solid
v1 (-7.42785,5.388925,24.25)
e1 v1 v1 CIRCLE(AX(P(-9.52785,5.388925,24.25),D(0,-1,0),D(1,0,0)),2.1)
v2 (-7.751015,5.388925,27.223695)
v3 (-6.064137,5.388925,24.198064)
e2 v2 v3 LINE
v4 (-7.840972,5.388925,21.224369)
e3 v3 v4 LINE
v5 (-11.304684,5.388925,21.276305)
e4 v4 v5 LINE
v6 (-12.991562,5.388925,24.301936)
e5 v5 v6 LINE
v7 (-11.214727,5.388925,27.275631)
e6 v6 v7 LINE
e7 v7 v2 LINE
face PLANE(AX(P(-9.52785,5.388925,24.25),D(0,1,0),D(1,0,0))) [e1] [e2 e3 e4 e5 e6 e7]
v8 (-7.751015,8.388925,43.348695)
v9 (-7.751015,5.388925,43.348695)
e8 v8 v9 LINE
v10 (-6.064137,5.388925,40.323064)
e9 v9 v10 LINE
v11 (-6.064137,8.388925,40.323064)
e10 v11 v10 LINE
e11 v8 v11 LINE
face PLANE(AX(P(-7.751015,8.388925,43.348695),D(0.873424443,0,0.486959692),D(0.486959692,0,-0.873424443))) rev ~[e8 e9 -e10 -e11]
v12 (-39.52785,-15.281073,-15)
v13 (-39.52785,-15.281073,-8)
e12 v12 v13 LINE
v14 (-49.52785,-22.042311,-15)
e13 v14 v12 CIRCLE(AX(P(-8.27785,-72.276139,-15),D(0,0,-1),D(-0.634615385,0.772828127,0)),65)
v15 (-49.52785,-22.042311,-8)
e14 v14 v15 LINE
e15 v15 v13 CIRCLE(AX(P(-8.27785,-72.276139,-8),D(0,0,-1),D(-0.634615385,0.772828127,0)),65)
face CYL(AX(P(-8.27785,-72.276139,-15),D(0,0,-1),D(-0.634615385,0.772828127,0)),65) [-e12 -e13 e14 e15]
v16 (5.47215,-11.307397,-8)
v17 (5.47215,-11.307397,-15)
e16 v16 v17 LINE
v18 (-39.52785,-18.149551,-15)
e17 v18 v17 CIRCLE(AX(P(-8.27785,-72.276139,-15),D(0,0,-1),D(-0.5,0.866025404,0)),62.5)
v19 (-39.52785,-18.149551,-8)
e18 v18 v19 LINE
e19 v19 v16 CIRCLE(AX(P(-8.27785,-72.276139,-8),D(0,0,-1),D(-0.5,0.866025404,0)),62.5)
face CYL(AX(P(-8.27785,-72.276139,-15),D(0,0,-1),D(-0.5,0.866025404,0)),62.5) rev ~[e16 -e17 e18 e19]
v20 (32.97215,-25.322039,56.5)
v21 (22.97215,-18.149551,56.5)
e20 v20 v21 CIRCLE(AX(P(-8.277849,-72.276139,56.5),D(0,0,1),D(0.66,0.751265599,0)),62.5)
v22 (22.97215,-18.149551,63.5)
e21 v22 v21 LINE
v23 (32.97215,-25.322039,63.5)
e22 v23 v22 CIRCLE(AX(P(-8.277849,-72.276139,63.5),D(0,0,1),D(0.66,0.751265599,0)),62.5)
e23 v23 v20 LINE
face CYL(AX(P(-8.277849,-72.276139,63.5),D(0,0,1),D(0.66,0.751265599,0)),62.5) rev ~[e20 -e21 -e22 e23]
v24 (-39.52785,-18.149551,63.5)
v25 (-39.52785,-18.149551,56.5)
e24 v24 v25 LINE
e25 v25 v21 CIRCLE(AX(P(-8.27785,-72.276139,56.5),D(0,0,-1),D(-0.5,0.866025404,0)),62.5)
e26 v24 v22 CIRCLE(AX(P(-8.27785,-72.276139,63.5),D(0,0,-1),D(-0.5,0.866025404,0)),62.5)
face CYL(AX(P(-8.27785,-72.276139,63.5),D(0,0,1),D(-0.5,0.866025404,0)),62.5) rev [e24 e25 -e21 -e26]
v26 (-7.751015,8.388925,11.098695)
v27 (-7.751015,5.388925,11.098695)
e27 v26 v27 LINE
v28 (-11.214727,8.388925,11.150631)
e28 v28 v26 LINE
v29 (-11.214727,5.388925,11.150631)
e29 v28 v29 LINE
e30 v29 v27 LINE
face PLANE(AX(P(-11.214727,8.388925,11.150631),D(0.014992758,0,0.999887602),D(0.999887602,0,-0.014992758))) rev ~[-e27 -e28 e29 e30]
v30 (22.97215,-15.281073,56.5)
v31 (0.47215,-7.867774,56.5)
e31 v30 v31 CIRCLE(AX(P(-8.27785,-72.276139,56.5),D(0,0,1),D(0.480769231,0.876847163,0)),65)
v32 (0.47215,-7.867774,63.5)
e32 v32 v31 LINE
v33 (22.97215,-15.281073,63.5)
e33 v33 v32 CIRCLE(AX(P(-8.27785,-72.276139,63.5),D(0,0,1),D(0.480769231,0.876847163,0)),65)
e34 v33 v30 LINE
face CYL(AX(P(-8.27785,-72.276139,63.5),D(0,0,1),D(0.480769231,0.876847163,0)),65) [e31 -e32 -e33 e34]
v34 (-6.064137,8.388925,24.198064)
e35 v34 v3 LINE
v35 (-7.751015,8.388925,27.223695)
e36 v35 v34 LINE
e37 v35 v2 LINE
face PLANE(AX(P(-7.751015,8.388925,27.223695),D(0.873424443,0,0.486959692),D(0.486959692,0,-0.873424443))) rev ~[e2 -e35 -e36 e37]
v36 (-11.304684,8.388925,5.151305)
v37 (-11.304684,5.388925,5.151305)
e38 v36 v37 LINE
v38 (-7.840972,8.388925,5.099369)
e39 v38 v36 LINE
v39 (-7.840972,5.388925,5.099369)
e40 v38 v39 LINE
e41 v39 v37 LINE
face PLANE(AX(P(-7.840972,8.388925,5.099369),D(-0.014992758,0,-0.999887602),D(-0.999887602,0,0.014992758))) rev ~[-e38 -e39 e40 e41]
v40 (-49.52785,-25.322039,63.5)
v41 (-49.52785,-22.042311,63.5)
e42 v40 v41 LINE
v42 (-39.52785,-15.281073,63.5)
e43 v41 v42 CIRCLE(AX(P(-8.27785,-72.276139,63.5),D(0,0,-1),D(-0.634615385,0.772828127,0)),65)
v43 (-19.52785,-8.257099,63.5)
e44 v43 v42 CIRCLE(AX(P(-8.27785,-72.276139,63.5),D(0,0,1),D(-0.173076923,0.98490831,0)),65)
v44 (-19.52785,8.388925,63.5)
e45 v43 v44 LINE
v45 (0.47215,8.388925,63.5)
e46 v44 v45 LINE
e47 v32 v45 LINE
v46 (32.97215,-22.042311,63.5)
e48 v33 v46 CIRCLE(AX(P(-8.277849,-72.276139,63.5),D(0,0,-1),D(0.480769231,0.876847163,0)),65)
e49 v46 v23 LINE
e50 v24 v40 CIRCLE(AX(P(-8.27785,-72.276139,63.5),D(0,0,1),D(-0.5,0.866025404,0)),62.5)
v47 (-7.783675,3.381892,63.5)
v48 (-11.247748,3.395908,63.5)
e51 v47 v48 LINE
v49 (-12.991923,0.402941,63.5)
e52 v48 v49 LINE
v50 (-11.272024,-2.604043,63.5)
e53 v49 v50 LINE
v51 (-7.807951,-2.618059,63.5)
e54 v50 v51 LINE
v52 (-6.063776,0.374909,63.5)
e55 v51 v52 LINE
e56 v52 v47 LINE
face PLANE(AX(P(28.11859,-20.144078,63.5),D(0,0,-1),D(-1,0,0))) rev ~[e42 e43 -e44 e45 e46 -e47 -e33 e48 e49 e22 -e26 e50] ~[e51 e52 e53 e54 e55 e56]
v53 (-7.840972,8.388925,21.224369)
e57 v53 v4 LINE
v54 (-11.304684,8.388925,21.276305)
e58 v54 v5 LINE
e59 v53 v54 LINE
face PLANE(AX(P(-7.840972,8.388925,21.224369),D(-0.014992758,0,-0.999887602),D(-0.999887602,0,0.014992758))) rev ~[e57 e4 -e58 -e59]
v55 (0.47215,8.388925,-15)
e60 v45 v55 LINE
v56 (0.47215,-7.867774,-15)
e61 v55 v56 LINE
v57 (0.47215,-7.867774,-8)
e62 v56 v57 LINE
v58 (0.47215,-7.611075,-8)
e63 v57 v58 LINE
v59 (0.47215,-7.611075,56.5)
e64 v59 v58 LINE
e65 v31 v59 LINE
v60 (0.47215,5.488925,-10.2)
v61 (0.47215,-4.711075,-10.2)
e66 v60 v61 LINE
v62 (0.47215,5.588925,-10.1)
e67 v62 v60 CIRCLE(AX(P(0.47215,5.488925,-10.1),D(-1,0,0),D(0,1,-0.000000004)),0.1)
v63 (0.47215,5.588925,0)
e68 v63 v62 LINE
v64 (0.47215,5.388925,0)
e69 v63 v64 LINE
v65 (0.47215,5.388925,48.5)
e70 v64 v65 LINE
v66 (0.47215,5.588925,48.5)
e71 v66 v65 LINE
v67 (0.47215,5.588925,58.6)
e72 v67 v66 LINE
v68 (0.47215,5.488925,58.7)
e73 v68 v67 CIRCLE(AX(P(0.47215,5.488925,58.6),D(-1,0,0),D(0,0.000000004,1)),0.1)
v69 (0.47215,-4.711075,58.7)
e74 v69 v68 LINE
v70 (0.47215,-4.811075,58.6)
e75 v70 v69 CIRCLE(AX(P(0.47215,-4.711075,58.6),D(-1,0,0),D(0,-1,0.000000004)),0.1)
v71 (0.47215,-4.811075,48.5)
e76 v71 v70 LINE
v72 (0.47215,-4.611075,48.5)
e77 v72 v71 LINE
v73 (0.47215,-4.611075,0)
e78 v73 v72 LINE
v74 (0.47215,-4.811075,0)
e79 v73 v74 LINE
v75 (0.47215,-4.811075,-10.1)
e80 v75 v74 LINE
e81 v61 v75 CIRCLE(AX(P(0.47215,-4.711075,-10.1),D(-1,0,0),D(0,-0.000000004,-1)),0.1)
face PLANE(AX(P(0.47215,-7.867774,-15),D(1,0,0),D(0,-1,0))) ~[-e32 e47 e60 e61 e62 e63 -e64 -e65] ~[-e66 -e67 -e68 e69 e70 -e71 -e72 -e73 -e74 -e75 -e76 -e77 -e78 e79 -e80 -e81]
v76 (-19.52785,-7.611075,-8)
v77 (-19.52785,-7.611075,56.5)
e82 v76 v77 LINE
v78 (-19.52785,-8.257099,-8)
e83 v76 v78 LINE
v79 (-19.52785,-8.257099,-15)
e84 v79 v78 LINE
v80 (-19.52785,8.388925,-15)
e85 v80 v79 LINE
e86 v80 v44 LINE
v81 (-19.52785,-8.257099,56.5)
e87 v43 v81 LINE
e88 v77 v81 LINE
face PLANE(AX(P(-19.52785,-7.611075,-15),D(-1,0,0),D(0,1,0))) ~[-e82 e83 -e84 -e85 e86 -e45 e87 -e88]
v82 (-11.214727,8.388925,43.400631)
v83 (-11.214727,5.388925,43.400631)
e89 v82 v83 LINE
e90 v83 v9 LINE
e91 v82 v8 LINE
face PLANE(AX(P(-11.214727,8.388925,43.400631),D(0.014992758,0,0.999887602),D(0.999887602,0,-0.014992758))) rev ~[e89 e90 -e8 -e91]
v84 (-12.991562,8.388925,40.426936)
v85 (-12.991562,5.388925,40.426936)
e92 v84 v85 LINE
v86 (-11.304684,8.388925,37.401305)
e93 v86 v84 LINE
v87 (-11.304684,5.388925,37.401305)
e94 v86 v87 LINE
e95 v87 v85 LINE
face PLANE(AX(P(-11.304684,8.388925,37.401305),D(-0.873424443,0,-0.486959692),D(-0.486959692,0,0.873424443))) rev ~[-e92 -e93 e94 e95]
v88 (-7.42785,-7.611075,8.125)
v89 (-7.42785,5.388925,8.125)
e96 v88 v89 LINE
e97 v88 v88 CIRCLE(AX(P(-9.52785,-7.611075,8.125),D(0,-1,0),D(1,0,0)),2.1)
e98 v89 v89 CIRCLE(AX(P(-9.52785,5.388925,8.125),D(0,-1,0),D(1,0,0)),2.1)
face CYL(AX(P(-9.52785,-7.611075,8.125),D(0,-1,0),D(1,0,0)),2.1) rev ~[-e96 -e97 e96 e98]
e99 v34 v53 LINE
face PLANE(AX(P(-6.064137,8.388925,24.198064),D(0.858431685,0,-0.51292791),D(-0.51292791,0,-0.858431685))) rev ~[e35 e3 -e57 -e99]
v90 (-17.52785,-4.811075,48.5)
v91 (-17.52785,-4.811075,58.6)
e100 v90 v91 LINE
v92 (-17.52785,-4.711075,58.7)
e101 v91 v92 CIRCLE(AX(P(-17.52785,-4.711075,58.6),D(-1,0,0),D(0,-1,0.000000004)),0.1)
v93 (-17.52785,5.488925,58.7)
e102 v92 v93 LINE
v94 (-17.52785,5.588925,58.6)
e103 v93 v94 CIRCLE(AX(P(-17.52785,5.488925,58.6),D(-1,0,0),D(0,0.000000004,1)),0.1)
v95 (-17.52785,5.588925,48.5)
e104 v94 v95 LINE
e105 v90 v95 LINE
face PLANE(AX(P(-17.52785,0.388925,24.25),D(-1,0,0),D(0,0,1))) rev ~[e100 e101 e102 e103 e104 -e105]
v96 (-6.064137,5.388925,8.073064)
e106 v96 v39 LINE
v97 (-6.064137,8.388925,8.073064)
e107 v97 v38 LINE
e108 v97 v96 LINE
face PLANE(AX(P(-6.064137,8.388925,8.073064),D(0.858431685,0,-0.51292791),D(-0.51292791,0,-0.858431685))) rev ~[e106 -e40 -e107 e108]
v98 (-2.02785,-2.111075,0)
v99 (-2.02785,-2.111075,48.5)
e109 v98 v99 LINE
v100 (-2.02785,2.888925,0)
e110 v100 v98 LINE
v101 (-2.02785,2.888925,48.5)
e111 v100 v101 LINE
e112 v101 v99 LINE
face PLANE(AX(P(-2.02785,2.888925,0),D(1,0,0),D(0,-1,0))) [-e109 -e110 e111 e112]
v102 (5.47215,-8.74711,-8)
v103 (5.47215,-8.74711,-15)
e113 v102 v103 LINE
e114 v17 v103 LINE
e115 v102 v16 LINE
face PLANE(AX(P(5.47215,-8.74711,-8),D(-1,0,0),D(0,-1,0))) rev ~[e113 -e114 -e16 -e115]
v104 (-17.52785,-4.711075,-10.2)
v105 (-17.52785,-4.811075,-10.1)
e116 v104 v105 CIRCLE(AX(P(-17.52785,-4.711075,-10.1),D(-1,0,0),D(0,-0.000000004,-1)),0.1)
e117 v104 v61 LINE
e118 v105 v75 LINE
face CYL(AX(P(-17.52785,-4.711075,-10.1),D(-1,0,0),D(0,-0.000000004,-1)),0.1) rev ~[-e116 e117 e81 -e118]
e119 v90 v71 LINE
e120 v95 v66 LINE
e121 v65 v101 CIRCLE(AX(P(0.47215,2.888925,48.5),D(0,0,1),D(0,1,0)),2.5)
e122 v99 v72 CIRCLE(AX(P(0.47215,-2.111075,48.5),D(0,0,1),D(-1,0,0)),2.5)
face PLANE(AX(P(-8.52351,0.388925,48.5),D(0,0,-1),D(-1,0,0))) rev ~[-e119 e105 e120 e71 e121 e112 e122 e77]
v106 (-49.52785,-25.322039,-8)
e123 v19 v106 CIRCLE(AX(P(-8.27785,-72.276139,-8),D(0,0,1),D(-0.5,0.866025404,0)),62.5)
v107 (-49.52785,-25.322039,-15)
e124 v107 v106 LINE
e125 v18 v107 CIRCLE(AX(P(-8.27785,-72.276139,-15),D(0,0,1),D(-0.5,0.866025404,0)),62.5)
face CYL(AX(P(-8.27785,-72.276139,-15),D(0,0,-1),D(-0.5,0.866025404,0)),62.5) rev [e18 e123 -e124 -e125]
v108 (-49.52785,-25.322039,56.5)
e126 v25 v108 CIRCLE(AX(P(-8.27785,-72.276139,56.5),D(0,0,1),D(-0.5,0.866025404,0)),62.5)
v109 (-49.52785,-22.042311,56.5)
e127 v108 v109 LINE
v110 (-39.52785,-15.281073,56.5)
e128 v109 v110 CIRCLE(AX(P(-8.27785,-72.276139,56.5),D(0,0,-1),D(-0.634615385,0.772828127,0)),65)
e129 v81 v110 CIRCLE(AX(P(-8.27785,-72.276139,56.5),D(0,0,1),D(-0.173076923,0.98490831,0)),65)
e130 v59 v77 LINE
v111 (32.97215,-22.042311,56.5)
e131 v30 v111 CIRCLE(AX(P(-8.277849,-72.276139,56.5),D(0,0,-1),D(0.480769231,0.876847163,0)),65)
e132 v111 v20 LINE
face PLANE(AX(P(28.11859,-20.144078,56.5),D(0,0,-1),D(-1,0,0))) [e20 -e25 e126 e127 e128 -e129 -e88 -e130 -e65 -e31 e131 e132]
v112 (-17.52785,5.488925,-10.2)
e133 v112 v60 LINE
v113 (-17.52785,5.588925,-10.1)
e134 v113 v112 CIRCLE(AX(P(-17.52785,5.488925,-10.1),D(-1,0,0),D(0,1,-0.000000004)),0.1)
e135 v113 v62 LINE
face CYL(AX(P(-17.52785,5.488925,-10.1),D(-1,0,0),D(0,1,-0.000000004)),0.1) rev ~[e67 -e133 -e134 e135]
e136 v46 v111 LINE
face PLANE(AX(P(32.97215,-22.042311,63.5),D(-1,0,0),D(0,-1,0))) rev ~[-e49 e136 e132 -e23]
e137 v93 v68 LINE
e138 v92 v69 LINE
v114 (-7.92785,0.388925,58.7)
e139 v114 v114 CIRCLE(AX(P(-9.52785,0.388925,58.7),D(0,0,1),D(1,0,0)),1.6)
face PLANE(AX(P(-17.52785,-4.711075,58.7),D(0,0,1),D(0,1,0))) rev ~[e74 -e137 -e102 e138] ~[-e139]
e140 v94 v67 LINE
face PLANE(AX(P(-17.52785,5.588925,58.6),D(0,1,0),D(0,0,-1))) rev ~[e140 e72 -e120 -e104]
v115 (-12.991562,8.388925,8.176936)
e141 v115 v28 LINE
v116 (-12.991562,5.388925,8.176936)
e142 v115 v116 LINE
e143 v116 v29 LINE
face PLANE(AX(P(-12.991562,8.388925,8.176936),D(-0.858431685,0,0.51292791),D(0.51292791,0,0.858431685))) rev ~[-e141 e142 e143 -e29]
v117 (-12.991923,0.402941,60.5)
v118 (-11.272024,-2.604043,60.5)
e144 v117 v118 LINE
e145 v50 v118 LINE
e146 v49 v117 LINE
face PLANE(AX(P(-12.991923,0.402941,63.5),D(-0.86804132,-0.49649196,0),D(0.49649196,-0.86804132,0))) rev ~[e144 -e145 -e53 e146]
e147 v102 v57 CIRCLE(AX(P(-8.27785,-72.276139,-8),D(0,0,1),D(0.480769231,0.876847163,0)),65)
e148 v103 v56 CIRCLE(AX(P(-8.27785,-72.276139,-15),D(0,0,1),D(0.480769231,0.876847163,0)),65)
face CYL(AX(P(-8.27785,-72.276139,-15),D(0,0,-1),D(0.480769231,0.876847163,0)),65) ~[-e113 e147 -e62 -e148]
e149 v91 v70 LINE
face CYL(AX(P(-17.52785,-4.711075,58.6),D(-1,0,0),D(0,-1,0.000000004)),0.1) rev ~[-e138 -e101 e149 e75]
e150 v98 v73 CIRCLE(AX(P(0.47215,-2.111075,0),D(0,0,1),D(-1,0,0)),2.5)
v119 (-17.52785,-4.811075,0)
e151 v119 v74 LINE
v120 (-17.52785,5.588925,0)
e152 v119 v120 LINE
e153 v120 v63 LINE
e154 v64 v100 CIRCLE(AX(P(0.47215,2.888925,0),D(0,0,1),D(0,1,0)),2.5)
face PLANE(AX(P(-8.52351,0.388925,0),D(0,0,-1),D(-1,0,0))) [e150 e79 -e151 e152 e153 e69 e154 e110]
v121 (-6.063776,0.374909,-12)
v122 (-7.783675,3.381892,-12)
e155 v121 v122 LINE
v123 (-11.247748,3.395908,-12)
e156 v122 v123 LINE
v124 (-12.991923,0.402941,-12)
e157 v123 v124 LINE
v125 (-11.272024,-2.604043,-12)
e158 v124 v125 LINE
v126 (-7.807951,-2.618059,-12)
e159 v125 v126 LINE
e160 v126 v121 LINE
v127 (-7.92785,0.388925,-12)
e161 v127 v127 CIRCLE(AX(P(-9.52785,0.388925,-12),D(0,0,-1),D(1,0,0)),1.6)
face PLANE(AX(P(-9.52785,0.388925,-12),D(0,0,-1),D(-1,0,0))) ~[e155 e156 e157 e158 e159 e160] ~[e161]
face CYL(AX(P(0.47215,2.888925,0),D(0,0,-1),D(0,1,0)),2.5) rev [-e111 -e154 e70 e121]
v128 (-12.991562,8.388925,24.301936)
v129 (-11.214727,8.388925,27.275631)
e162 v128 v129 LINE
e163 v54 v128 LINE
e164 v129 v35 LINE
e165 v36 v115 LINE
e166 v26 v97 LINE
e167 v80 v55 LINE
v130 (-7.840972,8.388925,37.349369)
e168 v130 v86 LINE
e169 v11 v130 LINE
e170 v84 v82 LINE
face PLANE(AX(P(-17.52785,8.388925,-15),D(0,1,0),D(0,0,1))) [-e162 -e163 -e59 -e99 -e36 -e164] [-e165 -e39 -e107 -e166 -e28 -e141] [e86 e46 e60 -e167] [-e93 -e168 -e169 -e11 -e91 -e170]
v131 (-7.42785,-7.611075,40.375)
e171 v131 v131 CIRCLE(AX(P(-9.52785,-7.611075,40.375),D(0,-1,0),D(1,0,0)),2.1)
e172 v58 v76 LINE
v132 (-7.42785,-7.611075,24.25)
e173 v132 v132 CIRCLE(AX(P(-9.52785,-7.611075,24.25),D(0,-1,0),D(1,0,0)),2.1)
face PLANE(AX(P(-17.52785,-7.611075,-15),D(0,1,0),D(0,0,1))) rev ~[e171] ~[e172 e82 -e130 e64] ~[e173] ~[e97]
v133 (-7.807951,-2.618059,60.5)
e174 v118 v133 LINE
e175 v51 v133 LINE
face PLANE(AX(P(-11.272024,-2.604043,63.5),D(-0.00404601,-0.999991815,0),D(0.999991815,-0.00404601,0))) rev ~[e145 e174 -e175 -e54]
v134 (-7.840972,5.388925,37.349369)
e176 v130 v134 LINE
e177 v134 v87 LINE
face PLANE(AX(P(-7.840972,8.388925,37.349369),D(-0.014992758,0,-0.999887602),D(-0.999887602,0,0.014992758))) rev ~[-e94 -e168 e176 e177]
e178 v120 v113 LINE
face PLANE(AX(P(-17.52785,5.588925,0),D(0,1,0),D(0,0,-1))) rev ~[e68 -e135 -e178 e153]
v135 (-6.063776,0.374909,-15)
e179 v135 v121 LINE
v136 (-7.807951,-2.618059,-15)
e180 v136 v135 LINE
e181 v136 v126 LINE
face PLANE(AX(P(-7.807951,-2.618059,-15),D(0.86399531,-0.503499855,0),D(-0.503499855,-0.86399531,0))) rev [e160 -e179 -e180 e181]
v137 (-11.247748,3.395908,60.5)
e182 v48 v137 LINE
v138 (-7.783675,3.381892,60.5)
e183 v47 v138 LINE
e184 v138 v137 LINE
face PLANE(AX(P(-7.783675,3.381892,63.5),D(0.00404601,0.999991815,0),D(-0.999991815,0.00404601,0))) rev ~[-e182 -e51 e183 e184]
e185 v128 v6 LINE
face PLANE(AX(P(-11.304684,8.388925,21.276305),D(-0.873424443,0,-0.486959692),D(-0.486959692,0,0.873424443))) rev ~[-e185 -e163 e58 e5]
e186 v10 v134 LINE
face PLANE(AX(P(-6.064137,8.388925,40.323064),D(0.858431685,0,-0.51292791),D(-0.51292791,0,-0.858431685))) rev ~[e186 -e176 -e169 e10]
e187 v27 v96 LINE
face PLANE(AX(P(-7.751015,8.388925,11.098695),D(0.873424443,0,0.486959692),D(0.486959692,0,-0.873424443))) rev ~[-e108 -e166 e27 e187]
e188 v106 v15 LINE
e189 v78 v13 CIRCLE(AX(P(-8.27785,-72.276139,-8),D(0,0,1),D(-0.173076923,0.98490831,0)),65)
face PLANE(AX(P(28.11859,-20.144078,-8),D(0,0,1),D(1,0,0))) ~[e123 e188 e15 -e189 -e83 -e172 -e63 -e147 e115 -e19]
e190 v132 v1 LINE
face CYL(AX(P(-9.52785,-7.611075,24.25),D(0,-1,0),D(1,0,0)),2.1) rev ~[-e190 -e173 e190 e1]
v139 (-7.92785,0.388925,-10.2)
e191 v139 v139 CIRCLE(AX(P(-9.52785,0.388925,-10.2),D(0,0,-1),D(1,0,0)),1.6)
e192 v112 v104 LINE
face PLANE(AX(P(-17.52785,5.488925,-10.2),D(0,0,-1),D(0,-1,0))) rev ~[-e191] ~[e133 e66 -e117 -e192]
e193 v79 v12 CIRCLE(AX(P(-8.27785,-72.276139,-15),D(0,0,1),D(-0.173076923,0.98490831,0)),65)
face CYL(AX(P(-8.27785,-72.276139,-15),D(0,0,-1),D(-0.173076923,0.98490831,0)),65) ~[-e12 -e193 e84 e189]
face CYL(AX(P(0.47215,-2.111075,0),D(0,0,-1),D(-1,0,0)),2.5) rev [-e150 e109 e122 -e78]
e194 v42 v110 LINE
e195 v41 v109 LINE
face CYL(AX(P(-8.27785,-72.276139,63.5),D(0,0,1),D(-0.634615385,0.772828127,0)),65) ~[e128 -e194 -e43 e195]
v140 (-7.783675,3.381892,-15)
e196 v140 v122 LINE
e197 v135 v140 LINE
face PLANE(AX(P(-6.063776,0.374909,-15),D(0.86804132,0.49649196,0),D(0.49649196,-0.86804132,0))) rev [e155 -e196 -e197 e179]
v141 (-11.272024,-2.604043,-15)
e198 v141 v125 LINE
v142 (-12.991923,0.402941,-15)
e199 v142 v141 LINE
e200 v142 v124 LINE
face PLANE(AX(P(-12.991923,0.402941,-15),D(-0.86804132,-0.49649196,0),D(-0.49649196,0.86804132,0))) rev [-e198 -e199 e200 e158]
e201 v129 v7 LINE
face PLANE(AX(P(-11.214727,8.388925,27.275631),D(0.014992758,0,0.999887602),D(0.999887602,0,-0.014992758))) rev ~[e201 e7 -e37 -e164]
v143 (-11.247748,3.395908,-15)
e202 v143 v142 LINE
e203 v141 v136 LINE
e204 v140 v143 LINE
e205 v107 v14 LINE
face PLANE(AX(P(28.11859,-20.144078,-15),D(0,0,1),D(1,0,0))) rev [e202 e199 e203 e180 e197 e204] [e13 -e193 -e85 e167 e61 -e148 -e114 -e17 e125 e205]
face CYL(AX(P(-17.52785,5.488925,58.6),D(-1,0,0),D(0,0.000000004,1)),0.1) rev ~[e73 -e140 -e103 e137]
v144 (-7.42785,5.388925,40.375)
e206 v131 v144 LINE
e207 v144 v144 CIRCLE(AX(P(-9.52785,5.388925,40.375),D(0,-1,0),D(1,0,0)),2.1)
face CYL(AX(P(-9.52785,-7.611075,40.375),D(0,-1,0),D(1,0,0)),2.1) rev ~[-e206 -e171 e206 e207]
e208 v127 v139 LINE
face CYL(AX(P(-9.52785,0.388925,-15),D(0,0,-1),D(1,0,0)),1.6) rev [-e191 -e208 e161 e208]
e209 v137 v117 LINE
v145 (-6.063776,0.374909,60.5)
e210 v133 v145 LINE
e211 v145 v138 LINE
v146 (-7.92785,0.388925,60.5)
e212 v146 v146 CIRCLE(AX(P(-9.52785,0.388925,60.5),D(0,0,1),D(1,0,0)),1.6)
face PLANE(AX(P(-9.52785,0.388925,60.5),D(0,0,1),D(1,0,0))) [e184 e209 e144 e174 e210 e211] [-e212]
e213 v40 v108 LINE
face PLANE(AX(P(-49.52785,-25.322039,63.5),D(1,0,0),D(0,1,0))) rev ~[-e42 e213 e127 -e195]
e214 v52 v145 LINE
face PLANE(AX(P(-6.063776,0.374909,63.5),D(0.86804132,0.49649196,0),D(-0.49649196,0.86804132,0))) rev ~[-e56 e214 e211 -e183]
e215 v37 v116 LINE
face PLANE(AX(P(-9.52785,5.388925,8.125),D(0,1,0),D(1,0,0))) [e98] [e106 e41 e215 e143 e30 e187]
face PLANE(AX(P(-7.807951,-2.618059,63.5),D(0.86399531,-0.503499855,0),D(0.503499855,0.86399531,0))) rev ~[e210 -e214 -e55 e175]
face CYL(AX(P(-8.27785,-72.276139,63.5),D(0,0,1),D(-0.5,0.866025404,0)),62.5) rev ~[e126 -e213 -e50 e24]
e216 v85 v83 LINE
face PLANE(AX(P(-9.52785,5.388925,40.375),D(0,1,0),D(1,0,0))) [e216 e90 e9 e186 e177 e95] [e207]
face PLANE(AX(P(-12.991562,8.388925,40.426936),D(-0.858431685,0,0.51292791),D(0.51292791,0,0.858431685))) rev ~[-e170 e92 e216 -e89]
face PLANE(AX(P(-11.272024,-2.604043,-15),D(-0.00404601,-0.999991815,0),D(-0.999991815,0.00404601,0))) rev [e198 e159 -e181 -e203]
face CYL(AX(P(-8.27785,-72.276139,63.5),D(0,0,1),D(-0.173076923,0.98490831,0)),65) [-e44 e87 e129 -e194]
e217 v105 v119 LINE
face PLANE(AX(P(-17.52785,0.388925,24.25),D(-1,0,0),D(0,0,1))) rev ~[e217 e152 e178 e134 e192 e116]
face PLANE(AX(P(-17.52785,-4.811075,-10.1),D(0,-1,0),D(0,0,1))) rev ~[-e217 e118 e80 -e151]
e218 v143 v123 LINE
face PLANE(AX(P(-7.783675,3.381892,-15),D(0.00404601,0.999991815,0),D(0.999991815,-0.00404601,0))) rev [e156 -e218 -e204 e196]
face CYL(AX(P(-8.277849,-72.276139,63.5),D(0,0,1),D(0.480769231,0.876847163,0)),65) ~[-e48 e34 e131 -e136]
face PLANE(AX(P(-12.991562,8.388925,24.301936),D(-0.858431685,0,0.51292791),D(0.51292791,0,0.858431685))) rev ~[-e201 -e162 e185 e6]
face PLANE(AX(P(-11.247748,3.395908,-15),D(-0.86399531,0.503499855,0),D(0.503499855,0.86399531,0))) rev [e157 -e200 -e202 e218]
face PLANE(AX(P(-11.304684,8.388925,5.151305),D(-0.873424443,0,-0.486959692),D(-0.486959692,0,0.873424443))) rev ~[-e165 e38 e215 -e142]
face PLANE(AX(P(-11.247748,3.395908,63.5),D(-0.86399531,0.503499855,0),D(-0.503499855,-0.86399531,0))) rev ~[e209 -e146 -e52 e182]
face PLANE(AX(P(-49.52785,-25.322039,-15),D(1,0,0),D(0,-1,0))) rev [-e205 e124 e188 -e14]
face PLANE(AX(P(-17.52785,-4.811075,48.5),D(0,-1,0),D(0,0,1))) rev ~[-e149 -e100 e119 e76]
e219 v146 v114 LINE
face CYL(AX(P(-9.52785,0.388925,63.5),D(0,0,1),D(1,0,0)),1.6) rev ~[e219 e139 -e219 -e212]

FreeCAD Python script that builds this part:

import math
import FreeCAD as App
import Part
import Sketcher

V = App.Vector
Q = App.Units.Quantity


def add_polygon(sketch, points):
    """Adds a closed chain of lines whose ends are joined by coincident constraints."""
    first, n = sketch.GeometryCount, len(points)
    for a, b in zip(points, points[1:] + points[:1]):
        sketch.addGeometry(Part.LineSegment(App.Vector(*a, 0), App.Vector(*b, 0)), False)
    for i in range(n):
        sketch.addConstraint(Sketcher.Constraint("Coincident", first + i, 2, first + (i + 1) % n, 1))

doc = App.newDocument("Part")
body = doc.addObject("PartDesign::Body", "Body")

# Sketch on XY plane
sketch1 = body.newObject("Sketcher::SketchObject", "Sketch")
sketch1.AttachmentSupport = (doc.getObject("XY_Plane"), [""])
sketch1.MapMode = "FlatFace"
sketch1.addGeometry([
    Part.ArcOfCircle(Part.Circle(V(0.5, -2.1, 0), V(0, 0, 1), 2.5), math.radians(180), math.radians(270)),  # 0
    Part.LineSegment(V(-2, -2.1, 0), V(-2, 2.9, 0)),  # 1
    Part.ArcOfCircle(Part.Circle(V(0.5, 2.9, 0), V(0, 0, 1), 2.5), math.radians(90), math.radians(180)),  # 2
    Part.LineSegment(V(0.5, 5.4, 0), V(0.5, 8.4, 0)),  # 3
    Part.LineSegment(V(0.5, 8.4, 0), V(-17.5, 8.4, 0)),  # 4
    Part.LineSegment(V(-17.5, 8.4, 0), V(-17.5, -7.6, 0)),  # 5
    Part.LineSegment(V(-17.5, -7.6, 0), V(0.5, -7.6, 0)),  # 6
    Part.LineSegment(V(0.5, -7.6, 0), V(0.5, -4.6, 0)),  # 7
], False)
sketch1.addConstraint([
    Sketcher.Constraint("Tangent", 0, 1, 1, 1),
    Sketcher.Constraint("Tangent", 1, 2, 2, 2),
    Sketcher.Constraint("Coincident", 2, 1, 3, 1),
    Sketcher.Constraint("Coincident", 3, 2, 4, 1),
    Sketcher.Constraint("Coincident", 4, 2, 5, 1),
    Sketcher.Constraint("Coincident", 5, 2, 6, 1),
    Sketcher.Constraint("Coincident", 6, 2, 7, 1),
    Sketcher.Constraint("Coincident", 7, 2, 0, 2),
    Sketcher.Constraint("Vertical", 1),
    Sketcher.Constraint("Vertical", 3),
    Sketcher.Constraint("Horizontal", 4),
    Sketcher.Constraint("Vertical", 5),
    Sketcher.Constraint("Horizontal", 6),
    Sketcher.Constraint("Vertical", 7),
    Sketcher.Constraint("Equal", 0, 2),
    Sketcher.Constraint("Vertical", 0, 3, 2, 1),
    Sketcher.Constraint("Vertical", 3, 2, 6, 2),
    Sketcher.Constraint("Equal", 3, 7),
    Sketcher.Constraint("Radius", 0, Q("2.5 mm")),
    Sketcher.Constraint("DistanceX", 4, 2, 4, 1, Q("18 mm")),
    Sketcher.Constraint("DistanceY", 1, 1, 1, 2, Q("5 mm")),
    Sketcher.Constraint("DistanceY", 3, 1, 3, 2, Q("3 mm")),
    Sketcher.Constraint("DistanceX", -1, 1, 0, 3, Q("0.47215 mm")),
    Sketcher.Constraint("DistanceY", 0, 3, -1, 1, Q("2.111075 mm")),
])
pad1 = body.newObject("PartDesign::Pad", "Pad")
pad1.Profile = sketch1
pad1.Length = 48.5

# Sketch on YZ plane
sketch2 = body.newObject("Sketcher::SketchObject", "Sketch001")
sketch2.AttachmentSupport = (doc.getObject("YZ_Plane"), [""])
sketch2.MapMode = "FlatFace"
sketch2.AttachmentOffset = App.Placement(V(0, 0, -17.52785), App.Rotation())
sketch2.addGeometry([
    Part.LineSegment(V(8.39, 63.5, 0), V(8.39, 48.5, 0)),  # 0
    Part.LineSegment(V(8.39, 48.5, 0), V(5.59, 48.5, 0)),  # 1
    Part.LineSegment(V(5.59, 48.5, 0), V(5.59, 58.6, 0)),  # 2
    Part.ArcOfCircle(Part.Circle(V(5.49, 58.6, 0), V(0, 0, 1), 0.1), math.radians(0), math.radians(90)),  # 3
    Part.LineSegment(V(5.49, 58.7, 0), V(-4.71, 58.7, 0)),  # 4
    Part.ArcOfCircle(Part.Circle(V(-4.71, 58.6, 0), V(0, 0, 1), 0.1), math.radians(90), math.radians(180)),  # 5
    Part.LineSegment(V(-4.81, 58.6, 0), V(-4.81, 48.5, 0)),  # 6
    Part.LineSegment(V(-4.81, 48.5, 0), V(-7.61, 48.5, 0)),  # 7
    Part.LineSegment(V(-7.61, 48.5, 0), V(-7.61, 63.5, 0)),  # 8
    Part.LineSegment(V(-7.61, 63.5, 0), V(8.39, 63.5, 0)),  # 9
    Part.LineSegment(V(-7.61, 0, 0), V(-4.81, 0, 0)),  # 10
    Part.LineSegment(V(-4.81, 0, 0), V(-4.81, -10.1, 0)),  # 11
    Part.ArcOfCircle(Part.Circle(V(-4.71, -10.1, 0), V(0, 0, 1), 0.1), math.radians(180), math.radians(270)),  # 12
    Part.LineSegment(V(-4.71, -10.2, 0), V(5.49, -10.2, 0)),  # 13
    Part.ArcOfCircle(Part.Circle(V(5.49, -10.1, 0), V(0, 0, 1), 0.1), math.radians(-90), math.radians(0)),  # 14
    Part.LineSegment(V(5.59, -10.1, 0), V(5.59, 0, 0)),  # 15
    Part.LineSegment(V(5.59, 0, 0), V(8.39, 0, 0)),  # 16
    Part.LineSegment(V(8.39, 0, 0), V(8.39, -15, 0)),  # 17
    Part.LineSegment(V(8.39, -15, 0), V(-7.61, -15, 0)),  # 18
    Part.LineSegment(V(-7.61, -15, 0), V(-7.61, 0, 0)),  # 19
], False)
sketch2.addConstraint([
    Sketcher.Constraint("Coincident", 0, 2, 1, 1),
    Sketcher.Constraint("Coincident", 1, 2, 2, 1),
    Sketcher.Constraint("Tangent", 2, 2, 3, 1),
    Sketcher.Constraint("Tangent", 3, 2, 4, 1),
    Sketcher.Constraint("Tangent", 4, 2, 5, 1),
    Sketcher.Constraint("Tangent", 5, 2, 6, 1),
    Sketcher.Constraint("Coincident", 6, 2, 7, 1),
    Sketcher.Constraint("Coincident", 7, 2, 8, 1),
    Sketcher.Constraint("Coincident", 8, 2, 9, 1),
    Sketcher.Constraint("Coincident", 9, 2, 0, 1),
    Sketcher.Constraint("Coincident", 10, 2, 11, 1),
    Sketcher.Constraint("Tangent", 11, 2, 12, 1),
    Sketcher.Constraint("Tangent", 12, 2, 13, 1),
    Sketcher.Constraint("Tangent", 13, 2, 14, 1),
    Sketcher.Constraint("Tangent", 14, 2, 15, 1),
    Sketcher.Constraint("Coincident", 15, 2, 16, 1),
    Sketcher.Constraint("Coincident", 16, 2, 17, 1),
    Sketcher.Constraint("Coincident", 17, 2, 18, 1),
    Sketcher.Constraint("Coincident", 18, 2, 19, 1),
    Sketcher.Constraint("Coincident", 19, 2, 10, 1),
    Sketcher.Constraint("Vertical", 0),
    Sketcher.Constraint("Horizontal", 1),
    Sketcher.Constraint("Vertical", 2),
    Sketcher.Constraint("Horizontal", 4),
    Sketcher.Constraint("Vertical", 6),
    Sketcher.Constraint("Horizontal", 7),
    Sketcher.Constraint("Vertical", 8),
    Sketcher.Constraint("Horizontal", 9),
    Sketcher.Constraint("Horizontal", 10),
    Sketcher.Constraint("Vertical", 11),
    Sketcher.Constraint("Horizontal", 13),
    Sketcher.Constraint("Vertical", 15),
    Sketcher.Constraint("Horizontal", 16),
    Sketcher.Constraint("Vertical", 17),
    Sketcher.Constraint("Horizontal", 18),
    Sketcher.Constraint("Vertical", 19),
    Sketcher.Constraint("Equal", 3, 5),
    Sketcher.Constraint("Equal", 5, 12),
    Sketcher.Constraint("Equal", 12, 14),
    Sketcher.Constraint("PointOnObject", 10, 2, -1),
    Sketcher.Constraint("PointOnObject", 15, 2, -1),
    Sketcher.Constraint("Horizontal", 1, 2, 6, 2),
    Sketcher.Constraint("Vertical", 5, 3, 12, 3),
    Sketcher.Constraint("Vertical", 3, 3, 14, 3),
    Sketcher.Constraint("Vertical", 9, 2, 16, 2),
    Sketcher.Constraint("Vertical", 8, 2, 18, 2),
    Sketcher.Constraint("Equal", 1, 7),
    Sketcher.Constraint("Equal", 6, 11),
    Sketcher.Constraint("Equal", 8, 17),
    Sketcher.Constraint("Radius", 3, Q("0.1 mm")),
    Sketcher.Constraint("DistanceX", 9, 1, 9, 2, Q("16 mm")),
    Sketcher.Constraint("DistanceY", 0, 2, 0, 1, Q("15 mm")),
    Sketcher.Constraint("DistanceX", 1, 2, 1, 1, Q("2.8 mm")),
    Sketcher.Constraint("DistanceY", 2, 1, 2, 2, Q("10.1 mm")),
    Sketcher.Constraint("DistanceY", -1, 1, 3, 3, Q("58.6 mm")),
    Sketcher.Constraint("DistanceX", -1, 1, 3, 3, Q("5.488925 mm")),
])
pad2 = body.newObject("PartDesign::Pad", "Pad001")
pad2.Profile = sketch2
pad2.Length = 18

# Sketch on XY plane
sketch3 = body.newObject("Sketcher::SketchObject", "Sketch002")
sketch3.AttachmentSupport = (doc.getObject("XY_Plane"), [""])
sketch3.MapMode = "FlatFace"
sketch3.AttachmentOffset = App.Placement(V(0, 0, 63.5), App.Rotation())
sketch3.addGeometry(Part.Circle(V(-9.5, 0.4, 0), V(0, 0, 1), 1.6), False)
sketch3.addConstraint([
    Sketcher.Constraint("Diameter", 0, Q("3.2 mm")),
    Sketcher.Constraint("DistanceX", 0, 3, -1, 1, Q("9.52785 mm")),
    Sketcher.Constraint("DistanceY", -1, 1, 0, 3, Q("0.388925 mm")),
])
pocket1 = body.newObject("PartDesign::Pocket", "Pocket")
pocket1.Profile = sketch3
pocket1.Length = 8
doc.recompute()

datumplane = body.newObject("PartDesign::Plane", "DatumPlane")
datumplane.AttachmentSupport = (doc.getObject("XY_Plane"), [""])
datumplane.MapMode = "FlatFace"
datumplane.AttachmentOffset = App.Placement(V(0, 0, 24.25), App.Rotation())
mirrored = body.newObject("PartDesign::Mirrored", "Mirrored")
mirrored.Originals = [pocket1]
mirrored.MirrorPlane = (datumplane, [""])
body.Tip = mirrored

# Sketch on XY plane
sketch4 = body.newObject("Sketcher::SketchObject", "Sketch003")
sketch4.AttachmentSupport = (doc.getObject("XY_Plane"), [""])
sketch4.MapMode = "FlatFace"
sketch4.AttachmentOffset = App.Placement(V(0, 0, 63.5), App.Rotation())
add_polygon(sketch4, [(-7.8, -2.6), (-6.1, 0.4), (-7.8, 3.4), (-11.2, 3.4), (-13, 0.4), (-11.3, -2.6)])  # lines 0-5
sketch4.addConstraint([
    Sketcher.Constraint("Parallel", 0, 3),
    Sketcher.Constraint("Parallel", 1, 4),
    Sketcher.Constraint("Parallel", 2, 5),
    Sketcher.Constraint("Equal", 0, 1),
    Sketcher.Constraint("Equal", 1, 2),
    Sketcher.Constraint("Equal", 2, 3),
    Sketcher.Constraint("DistanceY", 0, 2, 2, 2, Q("3.020999 mm")),
    Sketcher.Constraint("Distance", 0, Q("3.464102 mm")),
    Sketcher.Constraint("DistanceX", 1, 2, 0, 2, Q("1.719899 mm")),
    Sketcher.Constraint("DistanceY", -1, 1, 0, 2, Q("0.374909 mm")),
    Sketcher.Constraint("DistanceX", 2, 2, -1, 1, Q("11.247748 mm")),
    Sketcher.Constraint("DistanceY", -1, 1, 3, 2, Q("0.402941 mm")),
])
pocket2 = body.newObject("PartDesign::Pocket", "Pocket001")
pocket2.Profile = sketch4
pocket2.Length = 3
doc.recompute()

datumplane2 = body.newObject("PartDesign::Plane", "DatumPlane001")
datumplane2.AttachmentSupport = (doc.getObject("XY_Plane"), [""])
datumplane2.MapMode = "FlatFace"
datumplane2.AttachmentOffset = App.Placement(V(0, 0, 24.25), App.Rotation())
mirrored2 = body.newObject("PartDesign::Mirrored", "Mirrored001")
mirrored2.Originals = [pocket2]
mirrored2.MirrorPlane = (datumplane2, [""])
body.Tip = mirrored2

# Sketch on YZ plane
sketch5 = body.newObject("Sketcher::SketchObject", "Sketch004")
sketch5.AttachmentSupport = (doc.getObject("YZ_Plane"), [""])
sketch5.MapMode = "FlatFace"
sketch5.AttachmentOffset = App.Placement(V(0, 0, -17.52785), App.Rotation())
add_polygon(sketch5, [(8, -15), (-8, -15), (-8, 64), (8, 64)])  # lines 0-3
sketch5.addConstraint([
    Sketcher.Constraint("Horizontal", 0),
    Sketcher.Constraint("Vertical", 1),
    Sketcher.Constraint("Horizontal", 2),
    Sketcher.Constraint("Vertical", 3),
    Sketcher.Constraint("DistanceX", 0, 2, 0, 1, Q("16 mm")),
    Sketcher.Constraint("DistanceY", 1, 1, 1, 2, Q("78.5 mm")),
    Sketcher.Constraint("DistanceY", 0, 2, -1, 1, Q("15 mm")),
    Sketcher.Constraint("DistanceX", 0, 2, -1, 1, Q("7.611075 mm")),
])
pad3 = body.newObject("PartDesign::Pad", "Pad002")
pad3.Profile = sketch5
pad3.Length = 2
pad3.Reversed = True

# Sketch on XY plane
sketch6 = body.newObject("Sketcher::SketchObject", "Sketch005")
sketch6.AttachmentSupport = (doc.getObject("XY_Plane"), [""])
sketch6.MapMode = "FlatFace"
sketch6.AttachmentOffset = App.Placement(V(0, 0, 63.5), App.Rotation())
sketch6.addGeometry([
    Part.LineSegment(V(-19.53, -7.61, 0), V(-19.53, -8.26, 0)),  # 0
    Part.ArcOfCircle(Part.Circle(V(-8.28, -72.28, 0), V(0, 0, 1), 65), math.radians(99.97), math.radians(118.74)),  # 1
    Part.LineSegment(V(-39.53, -15.28, 0), V(-39.53, -18.15, 0)),  # 2
    Part.ArcOfCircle(Part.Circle(V(-8.28, -72.28, 0), V(0, 0, 1), 62.5), math.radians(60), math.radians(120)),  # 3
    Part.LineSegment(V(22.97, -18.15, 0), V(22.97, -15.28, 0)),  # 4
    Part.ArcOfCircle(Part.Circle(V(-8.28, -72.28, 0), V(0, 0, 1), 65), math.radians(61), math.radians(82)),  # 5
    Part.LineSegment(V(0.47, -7.87, 0), V(0.47, -7.61, 0)),  # 6
    Part.LineSegment(V(0.47, -7.61, 0), V(-19.53, -7.61, 0)),  # 7
], False)
sketch6.addConstraint([
    Sketcher.Constraint("Coincident", 0, 2, 1, 1),
    Sketcher.Constraint("Coincident", 1, 2, 2, 1),
    Sketcher.Constraint("Coincident", 2, 2, 3, 2),
    Sketcher.Constraint("Coincident", 3, 1, 4, 1),
    Sketcher.Constraint("Coincident", 4, 2, 5, 1),
    Sketcher.Constraint("Coincident", 5, 2, 6, 1),
    Sketcher.Constraint("Coincident", 6, 2, 7, 1),
    Sketcher.Constraint("Coincident", 7, 2, 0, 1),
    Sketcher.Constraint("Vertical", 0),
    Sketcher.Constraint("Vertical", 2),
    Sketcher.Constraint("Vertical", 4),
    Sketcher.Constraint("Vertical", 6),
    Sketcher.Constraint("Horizontal", 7),
    Sketcher.Constraint("Coincident", 3, 3, 1, 3),
    Sketcher.Constraint("Coincident", 5, 3, 1, 3),
    Sketcher.Constraint("Equal", 1, 5),
    Sketcher.Constraint("Horizontal", 2, 2, 3, 1),
    Sketcher.Constraint("Radius", 1, Q("65 mm")),
    Sketcher.Constraint("Radius", 3, Q("62.5 mm")),
    Sketcher.Constraint("DistanceX", 7, 2, 7, 1, Q("20 mm")),
    Sketcher.Constraint("DistanceX", 1, 2, 0, 2, Q("20 mm")),
    Sketcher.Constraint("DistanceX", 0, 2, 3, 1, Q("42.5 mm")),
    Sketcher.Constraint("DistanceY", 6, 1, 6, 2, Q("0.256698 mm")),
    Sketcher.Constraint("DistanceY", 0, 2, -1, 1, Q("8.257099 mm")),
    Sketcher.Constraint("DistanceX", 1, 3, -1, 1, Q("8.27785 mm")),
])
pad4 = body.newObject("PartDesign::Pad", "Pad003")
pad4.Profile = sketch6
pad4.Length = 7
pad4.Reversed = True
doc.recompute()

datumplane3 = body.newObject("PartDesign::Plane", "DatumPlane002")
datumplane3.AttachmentSupport = (doc.getObject("XY_Plane"), [""])
datumplane3.MapMode = "FlatFace"
datumplane3.AttachmentOffset = App.Placement(V(0, 0, 24.25), App.Rotation())
mirrored3 = body.newObject("PartDesign::Mirrored", "Mirrored002")
mirrored3.Originals = [pad4]
mirrored3.MirrorPlane = (datumplane3, [""])
body.Tip = mirrored3

# Sketch on XY plane
sketch7 = body.newObject("Sketcher::SketchObject", "Sketch006")
sketch7.AttachmentSupport = (doc.getObject("XY_Plane"), [""])
sketch7.MapMode = "FlatFace"
sketch7.AttachmentOffset = App.Placement(V(0, 0, 63.5), App.Rotation())
sketch7.addGeometry([
    Part.LineSegment(V(23, -15.3, 0), V(23, -18.1, 0)),  # 0
    Part.ArcOfCircle(Part.Circle(V(-8.3, -72.3, 0), V(0, 0, 1), 62.5), math.radians(48.7), math.radians(60)),  # 1
    Part.LineSegment(V(33, -25.3, 0), V(33, -22, 0)),  # 2
    Part.ArcOfCircle(Part.Circle(V(-8.3, -72.3, 0), V(0, 0, 1), 65), math.radians(50.61), math.radians(61.26)),  # 3
    Part.LineSegment(V(-39.5, -18.1, 0), V(-39.5, -15.3, 0)),  # 4
    Part.ArcOfCircle(Part.Circle(V(-8.3, -72.3, 0), V(0, 0, 1), 65), math.radians(118.74), math.radians(129.39)),  # 5
    Part.LineSegment(V(-49.5, -22, 0), V(-49.5, -25.3, 0)),  # 6
    Part.ArcOfCircle(Part.Circle(V(-8.3, -72.3, 0), V(0, 0, 1), 62.5), math.radians(120), math.radians(131.3)),  # 7
], False)
sketch7.addConstraint([
    Sketcher.Constraint("Coincident", 0, 2, 1, 2),
    Sketcher.Constraint("Coincident", 1, 1, 2, 1),
    Sketcher.Constraint("Coincident", 2, 2, 3, 1),
    Sketcher.Constraint("Coincident", 3, 2, 0, 1),
    Sketcher.Constraint("Coincident", 4, 2, 5, 1),
    Sketcher.Constraint("Coincident", 5, 2, 6, 1),
    Sketcher.Constraint("Coincident", 6, 2, 7, 2),
    Sketcher.Constraint("Coincident", 7, 1, 4, 1),
    Sketcher.Constraint("Vertical", 0),
    Sketcher.Constraint("Vertical", 2),
    Sketcher.Constraint("Vertical", 4),
    Sketcher.Constraint("Vertical", 6),
    Sketcher.Constraint("Coincident", 3, 3, 1, 3),
    Sketcher.Constraint("Coincident", 5, 3, 1, 3),
    Sketcher.Constraint("Coincident", 7, 3, 1, 3),
    Sketcher.Constraint("Equal", 3, 5),
    Sketcher.Constraint("Equal", 1, 7),
    Sketcher.Constraint("Horizontal", 3, 2, 4, 2),
    Sketcher.Constraint("Horizontal", 2, 2, 5, 2),
    Sketcher.Constraint("Radius", 3, Q("65 mm")),
    Sketcher.Constraint("Radius", 1, Q("62.5 mm")),
    Sketcher.Constraint("DistanceX", 0, 2, 1, 1, Q("10 mm")),
    Sketcher.Constraint("DistanceX", 4, 2, 3, 2, Q("62.5 mm")),
    Sketcher.Constraint("DistanceX", 1, 3, -1, 1, Q("8.277849 mm")),
    Sketcher.Constraint("DistanceY", 1, 3, -1, 1, Q("72.276139 mm")),
])
pad5 = body.newObject("PartDesign::Pad", "Pad004")
pad5.Profile = sketch7
pad5.Length = 7
pad5.Reversed = True
doc.recompute()

datumplane4 = body.newObject("PartDesign::Plane", "DatumPlane003")
datumplane4.AttachmentSupport = (doc.getObject("XY_Plane"), [""])
datumplane4.MapMode = "FlatFace"
datumplane4.AttachmentOffset = App.Placement(V(0, 0, 24.25), App.Rotation())
mirrored4 = body.newObject("PartDesign::Mirrored", "Mirrored003")
mirrored4.Originals = [pad5]
mirrored4.MirrorPlane = (datumplane4, [""])
body.Tip = mirrored4

# Sketch on XZ plane
sketch8 = body.newObject("Sketcher::SketchObject", "Sketch007")
sketch8.AttachmentSupport = (doc.getObject("XZ_Plane"), [""])
sketch8.MapMode = "FlatFace"
sketch8.AttachmentOffset = App.Placement(V(0, 0, 7.611075), App.Rotation())
sketch8.addGeometry([
    Part.Circle(V(-9.5, 40.4, 0), V(0, 0, 1), 2.1),
    Part.Circle(V(-9.5, 8.1, 0), V(0, 0, 1), 2.1),
    Part.Circle(V(-9.5, 24.2, 0), V(0, 0, 1), 2.1),
], False)
sketch8.addConstraint([
    Sketcher.Constraint("Equal", 0, 1),
    Sketcher.Constraint("Equal", 1, 2),
    Sketcher.Constraint("Vertical", 0, 3, 1, 3),
    Sketcher.Constraint("Vertical", 1, 3, 2, 3),
    Sketcher.Constraint("Diameter", 0, Q("4.2 mm")),
    Sketcher.Constraint("DistanceY", -1, 1, 2, 3, Q("24.25 mm")),
    Sketcher.Constraint("DistanceY", 1, 3, 0, 3, Q("32.25 mm")),
    Sketcher.Constraint("DistanceY", -1, 1, 0, 3, Q("40.375 mm")),
    Sketcher.Constraint("DistanceX", 0, 3, -1, 1, Q("9.52785 mm")),
])
pocket3 = body.newObject("PartDesign::Pocket", "Pocket002")
pocket3.Profile = sketch8
pocket3.Type = "ThroughAll"

# Sketch on XZ plane
sketch9 = body.newObject("Sketcher::SketchObject", "Sketch008")
sketch9.AttachmentSupport = (doc.getObject("XZ_Plane"), [""])
sketch9.MapMode = "FlatFace"
sketch9.AttachmentOffset = App.Placement(V(0, 0, -8.388925), App.Rotation())
add_polygon(sketch9, [(-7.8, 27.2), (-6.1, 24.2), (-7.8, 21.2), (-11.3, 21.3), (-13, 24.3), (-11.2, 27.3)])  # lines 0-5
add_polygon(sketch9, [(-7.8, 11.1), (-6.1, 8.1), (-7.8, 5.1), (-11.3, 5.2), (-13, 8.2), (-11.2, 11.2)])  # lines 6-11
add_polygon(sketch9, [(-7.8, 43.3), (-6.1, 40.3), (-7.8, 37.3), (-11.3, 37.4), (-13, 40.4), (-11.2, 43.4)])  # lines 12-17
sketch9.addConstraint([
    Sketcher.Constraint("Parallel", 0, 3),
    Sketcher.Constraint("Parallel", 1, 4),
    Sketcher.Constraint("Parallel", 2, 5),
    Sketcher.Constraint("Parallel", 3, 6),
    Sketcher.Constraint("Parallel", 4, 7),
    Sketcher.Constraint("Parallel", 5, 8),
    Sketcher.Constraint("Parallel", 6, 9),
    Sketcher.Constraint("Parallel", 7, 10),
    Sketcher.Constraint("Parallel", 8, 11),
    Sketcher.Constraint("Parallel", 9, 12),
    Sketcher.Constraint("Parallel", 10, 13),
    Sketcher.Constraint("Parallel", 11, 14),
    Sketcher.Constraint("Parallel", 12, 15),
    Sketcher.Constraint("Parallel", 13, 16),
    Sketcher.Constraint("Parallel", 14, 17),
    Sketcher.Constraint("Vertical", 0, 2, 6, 2),
    Sketcher.Constraint("Vertical", 1, 2, 7, 2),
    Sketcher.Constraint("Vertical", 2, 2, 8, 2),
    Sketcher.Constraint("Vertical", 3, 2, 9, 2),
    Sketcher.Constraint("Vertical", 4, 2, 10, 2),
    Sketcher.Constraint("Vertical", 6, 2, 12, 2),
    Sketcher.Constraint("Vertical", 7, 2, 13, 2),
    Sketcher.Constraint("Vertical", 8, 2, 14, 2),
    Sketcher.Constraint("Vertical", 9, 2, 15, 2),
    Sketcher.Constraint("Vertical", 10, 2, 16, 2),
    Sketcher.Constraint("Equal", 0, 1),
    Sketcher.Constraint("Equal", 1, 2),
    Sketcher.Constraint("Equal", 2, 3),
    Sketcher.Constraint("DistanceY", 6, 2, 0, 2, Q("16.125 mm")),
    Sketcher.Constraint("DistanceY", 0, 2, 12, 2, Q("16.125 mm")),
    Sketcher.Constraint("Distance", 0, Q("3.464102 mm")),
    Sketcher.Constraint("DistanceX", 1, 2, -1, 1, Q("7.840972 mm")),
    Sketcher.Constraint("DistanceY", -1, 1, 1, 2, Q("21.224369 mm")),
    Sketcher.Constraint("DistanceX", 3, 2, -1, 1, Q("12.991562 mm")),
    Sketcher.Constraint("DistanceY", -1, 1, 4, 2, Q("27.275631 mm")),
    Sketcher.Constraint("DistanceY", 2, 2, 0, 2, Q("2.921758 mm")),
])
pocket4 = body.newObject("PartDesign::Pocket", "Pocket003")
pocket4.Profile = sketch9
pocket4.Length = 3
pocket4.Reversed = True

# Sketch on XY plane
sketch10 = body.newObject("Sketcher::SketchObject", "Sketch009")
sketch10.AttachmentSupport = (doc.getObject("XY_Plane"), [""])
sketch10.MapMode = "FlatFace"
sketch10.AttachmentOffset = App.Placement(V(0, 0, -8), App.Rotation())
sketch10.addGeometry([
    Part.LineSegment(V(5.5, -8.7, 0), V(5.5, -11.3, 0)),
    Part.ArcOfCircle(Part.Circle(V(-8.3, -72.3, 0), V(0, 0, 1), 62.5), math.radians(49), math.radians(77)),
    Part.LineSegment(V(33, -25.3, 0), V(33, -22, 0)),
    Part.ArcOfCircle(Part.Circle(V(-8.3, -72.3, 0), V(0, 0, 1), 65), math.radians(51), math.radians(78)),
], False)
sketch10.addConstraint([
    Sketcher.Constraint("Coincident", 0, 2, 1, 2),
    Sketcher.Constraint("Coincident", 1, 1, 2, 1),
    Sketcher.Constraint("Coincident", 2, 2, 3, 1),
    Sketcher.Constraint("Coincident", 3, 2, 0, 1),
    Sketcher.Constraint("Vertical", 0),
    Sketcher.Constraint("Vertical", 2),
    Sketcher.Constraint("Coincident", 3, 3, 1, 3),
    Sketcher.Constraint("Radius", 3, Q("65 mm")),
    Sketcher.Constraint("Radius", 1, Q("62.5 mm")),
    Sketcher.Constraint("DistanceX", 0, 2, 1, 1, Q("27.5 mm")),
    Sketcher.Constraint("DistanceX", 3, 3, 0, 2, Q("13.75 mm")),
    Sketcher.Constraint("DistanceX", 1, 3, -1, 1, Q("8.27785 mm")),
    Sketcher.Constraint("DistanceY", 1, 3, -1, 1, Q("72.276139 mm")),
])
pocket5 = body.newObject("PartDesign::Pocket", "Pocket004")
pocket5.Profile = sketch10
pocket5.Type = "ThroughAll"

doc.recompute()
